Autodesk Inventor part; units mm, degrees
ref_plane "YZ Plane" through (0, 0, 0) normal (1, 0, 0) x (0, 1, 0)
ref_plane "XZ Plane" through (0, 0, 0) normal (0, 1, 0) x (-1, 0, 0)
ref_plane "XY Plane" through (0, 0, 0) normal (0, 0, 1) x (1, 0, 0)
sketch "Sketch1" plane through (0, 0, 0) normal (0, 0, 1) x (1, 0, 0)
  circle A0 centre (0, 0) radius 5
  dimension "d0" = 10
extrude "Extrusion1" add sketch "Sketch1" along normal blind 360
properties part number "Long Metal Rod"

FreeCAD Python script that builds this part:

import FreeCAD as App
import Part
import Sketcher

doc = App.newDocument("Part")
body = doc.addObject("PartDesign::Body", "Body")

# Sketch on XY plane
sketch1 = doc.addObject("Sketcher::SketchObject", "Sketch")
body.addObject(sketch1)
sketch1.AttachmentSupport = (doc.XY_Plane, [""])
sketch1.MapMode = "FlatFace"
sketch1.addGeometry(Part.Circle(App.Vector(0, 0, 0), App.Vector(0, 0, 1), 5), False)
sketch1.addConstraint(Sketcher.Constraint("Coincident", 0, 3, -1, 1))
sketch1.addConstraint(Sketcher.Constraint("Diameter", 0, 10.0))
pad1 = doc.addObject("PartDesign::Pad", "Pad")
body.addObject(pad1)
pad1.Profile = sketch1
pad1.Length = 360

doc.recompute()
